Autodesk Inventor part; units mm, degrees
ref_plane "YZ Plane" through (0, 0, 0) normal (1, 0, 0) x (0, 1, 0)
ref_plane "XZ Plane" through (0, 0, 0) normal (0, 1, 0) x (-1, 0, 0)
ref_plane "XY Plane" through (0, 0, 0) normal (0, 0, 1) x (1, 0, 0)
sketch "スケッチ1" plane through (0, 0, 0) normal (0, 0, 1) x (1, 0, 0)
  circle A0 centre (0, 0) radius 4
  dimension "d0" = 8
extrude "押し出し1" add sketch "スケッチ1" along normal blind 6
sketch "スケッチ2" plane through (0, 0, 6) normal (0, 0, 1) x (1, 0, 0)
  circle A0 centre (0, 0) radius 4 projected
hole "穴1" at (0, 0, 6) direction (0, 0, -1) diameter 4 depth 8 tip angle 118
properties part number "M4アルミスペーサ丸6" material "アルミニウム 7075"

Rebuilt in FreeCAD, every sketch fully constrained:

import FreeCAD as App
import Part
import Sketcher

V = App.Vector

doc = App.newDocument("Part")
body = doc.addObject("PartDesign::Body", "Body")

sketch1 = body.newObject("Sketcher::SketchObject", "Sketch")
sketch1.AttachmentSupport = (doc.getObject("XY_Plane"), [""])
sketch1.MapMode = "FlatFace"
sketch1.addGeometry(Part.Circle(V(0, 0, 0), V(0, 0, 1), 4), False)
sketch1.addConstraint([
    Sketcher.Constraint("Coincident", 0, 3, -1, 1),
    Sketcher.Constraint("Diameter", 0, 8.0),
])
pad1 = body.newObject("PartDesign::Pad", "Pad")
pad1.Profile = sketch1
pad1.Length = 6

sketch2 = body.newObject("Sketcher::SketchObject", "Sketch001")
sketch2.AttachmentSupport = (doc.getObject("XY_Plane"), [""])
sketch2.MapMode = "FlatFace"
sketch2.AttachmentOffset = App.Placement(V(0, 0, 6), App.Rotation())
sketch2.addGeometry(Part.Circle(V(0, 0, 0), V(0, 0, 1), 2), False)
sketch2.addConstraint([
    Sketcher.Constraint("Coincident", 0, 3, -1, 1),
    Sketcher.Constraint("Diameter", 0, 4.0),
])
doc.recompute()
hole = body.newObject("PartDesign::Hole", "Hole")
hole.Profile = sketch2
hole.ThreadType = "None"
hole.Diameter = 4
hole.DepthType = "Dimension"
hole.Depth = 8
hole.DrillPoint = "Angled"
hole.DrillPointAngle = 118

doc.recompute()
